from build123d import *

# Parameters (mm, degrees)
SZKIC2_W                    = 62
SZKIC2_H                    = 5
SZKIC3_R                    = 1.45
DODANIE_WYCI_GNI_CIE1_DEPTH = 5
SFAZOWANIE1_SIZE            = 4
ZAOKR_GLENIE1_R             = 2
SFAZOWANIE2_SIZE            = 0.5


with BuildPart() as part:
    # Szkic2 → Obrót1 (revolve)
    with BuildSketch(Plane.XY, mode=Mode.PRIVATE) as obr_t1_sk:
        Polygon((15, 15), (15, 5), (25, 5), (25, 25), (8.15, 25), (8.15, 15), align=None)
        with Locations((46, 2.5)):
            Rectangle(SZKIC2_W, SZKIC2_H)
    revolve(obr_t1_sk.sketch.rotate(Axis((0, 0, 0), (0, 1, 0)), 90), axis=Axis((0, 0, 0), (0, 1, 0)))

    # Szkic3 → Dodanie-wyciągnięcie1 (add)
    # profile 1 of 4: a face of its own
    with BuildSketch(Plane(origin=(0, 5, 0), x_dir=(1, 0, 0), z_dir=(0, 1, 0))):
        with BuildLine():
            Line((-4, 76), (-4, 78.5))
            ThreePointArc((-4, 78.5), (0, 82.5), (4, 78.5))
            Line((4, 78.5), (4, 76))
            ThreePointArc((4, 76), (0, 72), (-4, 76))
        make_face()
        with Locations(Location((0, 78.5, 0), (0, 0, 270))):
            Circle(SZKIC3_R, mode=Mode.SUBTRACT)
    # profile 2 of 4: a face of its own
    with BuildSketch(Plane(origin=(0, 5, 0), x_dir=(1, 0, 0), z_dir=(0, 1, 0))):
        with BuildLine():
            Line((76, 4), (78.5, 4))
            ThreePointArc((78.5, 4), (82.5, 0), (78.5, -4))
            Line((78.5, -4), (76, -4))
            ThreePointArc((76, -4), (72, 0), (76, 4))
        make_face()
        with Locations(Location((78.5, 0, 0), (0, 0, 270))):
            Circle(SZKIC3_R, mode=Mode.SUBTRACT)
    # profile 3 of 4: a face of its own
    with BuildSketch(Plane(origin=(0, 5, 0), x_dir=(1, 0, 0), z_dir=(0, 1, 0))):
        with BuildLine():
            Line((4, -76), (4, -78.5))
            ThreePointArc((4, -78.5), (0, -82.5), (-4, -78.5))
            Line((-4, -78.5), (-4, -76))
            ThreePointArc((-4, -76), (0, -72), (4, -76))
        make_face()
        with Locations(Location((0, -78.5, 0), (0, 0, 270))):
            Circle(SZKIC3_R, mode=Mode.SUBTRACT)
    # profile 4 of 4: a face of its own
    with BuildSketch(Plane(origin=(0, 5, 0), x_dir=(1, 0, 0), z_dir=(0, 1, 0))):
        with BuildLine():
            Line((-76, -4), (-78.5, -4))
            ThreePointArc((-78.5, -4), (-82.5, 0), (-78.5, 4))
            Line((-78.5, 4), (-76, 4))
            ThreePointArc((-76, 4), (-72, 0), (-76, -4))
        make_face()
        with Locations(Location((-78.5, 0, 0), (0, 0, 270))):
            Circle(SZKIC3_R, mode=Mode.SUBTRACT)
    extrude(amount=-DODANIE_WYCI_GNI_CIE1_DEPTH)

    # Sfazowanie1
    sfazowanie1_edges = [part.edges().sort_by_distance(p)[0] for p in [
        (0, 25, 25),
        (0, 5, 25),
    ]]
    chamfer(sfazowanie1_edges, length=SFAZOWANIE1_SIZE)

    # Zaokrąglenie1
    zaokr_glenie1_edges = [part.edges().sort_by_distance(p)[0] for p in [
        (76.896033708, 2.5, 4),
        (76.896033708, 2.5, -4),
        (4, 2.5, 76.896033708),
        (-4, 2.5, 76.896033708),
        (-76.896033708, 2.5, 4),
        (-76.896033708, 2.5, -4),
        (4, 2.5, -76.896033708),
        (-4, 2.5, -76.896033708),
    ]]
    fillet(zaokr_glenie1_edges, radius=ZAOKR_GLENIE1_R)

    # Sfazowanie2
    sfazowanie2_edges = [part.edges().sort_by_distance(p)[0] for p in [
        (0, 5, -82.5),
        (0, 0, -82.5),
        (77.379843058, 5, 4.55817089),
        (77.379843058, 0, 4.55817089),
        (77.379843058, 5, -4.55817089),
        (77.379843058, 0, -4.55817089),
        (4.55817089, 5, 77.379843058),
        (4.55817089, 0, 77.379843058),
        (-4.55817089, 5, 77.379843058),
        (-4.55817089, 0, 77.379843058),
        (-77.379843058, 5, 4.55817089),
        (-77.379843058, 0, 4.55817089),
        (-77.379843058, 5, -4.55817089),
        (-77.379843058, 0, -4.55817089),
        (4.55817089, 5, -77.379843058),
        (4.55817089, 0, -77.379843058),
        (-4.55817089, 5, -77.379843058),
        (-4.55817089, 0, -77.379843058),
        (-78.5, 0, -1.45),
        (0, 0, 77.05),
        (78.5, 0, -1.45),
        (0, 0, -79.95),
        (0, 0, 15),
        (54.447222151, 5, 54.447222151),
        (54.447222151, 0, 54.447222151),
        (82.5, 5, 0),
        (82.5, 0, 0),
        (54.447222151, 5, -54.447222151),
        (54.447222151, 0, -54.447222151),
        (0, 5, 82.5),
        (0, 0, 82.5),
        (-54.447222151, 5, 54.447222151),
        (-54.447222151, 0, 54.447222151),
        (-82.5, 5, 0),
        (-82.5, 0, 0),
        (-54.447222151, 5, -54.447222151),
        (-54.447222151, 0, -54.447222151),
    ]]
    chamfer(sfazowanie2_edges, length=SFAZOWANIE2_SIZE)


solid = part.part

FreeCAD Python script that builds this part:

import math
import FreeCAD as App
import Part
import Sketcher


def edges_at(feature, points):
    """Names of the edges that pass closest to the given points."""
    edges = feature.Shape.Edges
    near = lambda p: min(range(len(edges)), key=lambda i: edges[i].distToShape(Part.Vertex(*p))[0])
    return sorted({f"Edge{near(p) + 1}" for p in points})

doc = App.newDocument("Part")
body = doc.addObject("PartDesign::Body", "Body")

sketch1 = doc.addObject("Sketcher::SketchObject", "Sketch")
body.addObject(sketch1)
sketch1.AttachmentSupport = (doc.XY_Plane, [""])
sketch1.MapMode = "FlatFace"
sketch1.addGeometry([
    Part.LineSegment(App.Vector(15, 15, 0), App.Vector(15, 0, 0)),
    Part.LineSegment(App.Vector(15, 0, 0), App.Vector(77, 0, 0)),
    Part.LineSegment(App.Vector(77, 0, 0), App.Vector(77, 5, 0)),
    Part.LineSegment(App.Vector(77, 5, 0), App.Vector(25, 5, 0)),
    Part.LineSegment(App.Vector(25, 5, 0), App.Vector(25, 25, 0)),
    Part.LineSegment(App.Vector(25, 25, 0), App.Vector(8, 25, 0)),
    Part.LineSegment(App.Vector(8, 25, 0), App.Vector(8, 15, 0)),
    Part.LineSegment(App.Vector(8, 15, 0), App.Vector(15, 15, 0)),
], False)
sketch1.addConstraint([
    Sketcher.Constraint("Coincident", 0, 2, 1, 1),
    Sketcher.Constraint("Coincident", 1, 2, 2, 1),
    Sketcher.Constraint("Coincident", 2, 2, 3, 1),
    Sketcher.Constraint("Coincident", 3, 2, 4, 1),
    Sketcher.Constraint("Coincident", 4, 2, 5, 1),
    Sketcher.Constraint("Coincident", 5, 2, 6, 1),
    Sketcher.Constraint("Coincident", 6, 2, 7, 1),
    Sketcher.Constraint("Coincident", 7, 2, 0, 1),
    Sketcher.Constraint("Vertical", 0),
    Sketcher.Constraint("Horizontal", 1),
    Sketcher.Constraint("Vertical", 2),
    Sketcher.Constraint("Horizontal", 3),
    Sketcher.Constraint("Vertical", 4),
    Sketcher.Constraint("Horizontal", 5),
    Sketcher.Constraint("Vertical", 6),
    Sketcher.Constraint("Horizontal", 7),
    Sketcher.Constraint("PointOnObject", 0, 2, -1),
    Sketcher.Constraint("DistanceX", 1, 1, 1, 2, 62.0),
    Sketcher.Constraint("DistanceX", 3, 2, 3, 1, 52.0),
    Sketcher.Constraint("DistanceY", 0, 2, 0, 1, 15.0),
    Sketcher.Constraint("DistanceY", 2, 1, 2, 2, 5.0),
    Sketcher.Constraint("DistanceY", 4, 1, 4, 2, 20.0),
    Sketcher.Constraint("DistanceX", -1, 1, 0, 2, 15.0),
    Sketcher.Constraint("DistanceX", 5, 2, 5, 1, 16.85),
])
revolution = doc.addObject("PartDesign::Revolution", "Revolution")
body.addObject(revolution)
revolution.Profile = sketch1
revolution.ReferenceAxis = (sketch1, ["V_Axis"])
revolution.Angle = 360

sketch2 = doc.addObject("Sketcher::SketchObject", "Sketch001")
body.addObject(sketch2)
sketch2.AttachmentSupport = (doc.XZ_Plane, [""])
sketch2.MapMode = "FlatFace"
sketch2.AttachmentOffset = App.Placement(App.Vector(0, 0, -5), App.Rotation())
sketch2.addGeometry([
    Part.LineSegment(App.Vector(-4, -78.5, 0), App.Vector(-4, -76, 0)),
    Part.ArcOfCircle(Part.Circle(App.Vector(0, -76, 0), App.Vector(0, 0, 1), 4), math.radians(0), math.radians(180)),
    Part.LineSegment(App.Vector(4, -76, 0), App.Vector(4, -78.5, 0)),
    Part.ArcOfCircle(Part.Circle(App.Vector(0, -78.5, 0), App.Vector(0, 0, 1), 4), math.radians(180), math.radians(360)),
    Part.Circle(App.Vector(0, -78.5, 0), App.Vector(0, 0, 1), 1.4),
    Part.LineSegment(App.Vector(78.5, -4, 0), App.Vector(76, -4, 0)),
    Part.ArcOfCircle(Part.Circle(App.Vector(76, 0, 0), App.Vector(0, 0, 1), 4), math.radians(90), math.radians(270)),
    Part.LineSegment(App.Vector(76, 4, 0), App.Vector(78.5, 4, 0)),
    Part.ArcOfCircle(Part.Circle(App.Vector(78.5, 0, 0), App.Vector(0, 0, 1), 4), math.radians(-90), math.radians(90)),
    Part.Circle(App.Vector(78.5, 0, 0), App.Vector(0, 0, 1), 1.4),
    Part.LineSegment(App.Vector(4, 78.5, 0), App.Vector(4, 76, 0)),
    Part.ArcOfCircle(Part.Circle(App.Vector(0, 76, 0), App.Vector(0, 0, 1), 4), math.radians(180), math.radians(360)),
    Part.LineSegment(App.Vector(-4, 76, 0), App.Vector(-4, 78.5, 0)),
    Part.ArcOfCircle(Part.Circle(App.Vector(0, 78.5, 0), App.Vector(0, 0, 1), 4), math.radians(0), math.radians(180)),
    Part.Circle(App.Vector(0, 78.5, 0), App.Vector(0, 0, 1), 1.4),
    Part.LineSegment(App.Vector(-78.5, 4, 0), App.Vector(-76, 4, 0)),
    Part.ArcOfCircle(Part.Circle(App.Vector(-76, 0, 0), App.Vector(0, 0, 1), 4), math.radians(-90), math.radians(90)),
    Part.LineSegment(App.Vector(-76, -4, 0), App.Vector(-78.5, -4, 0)),
    Part.ArcOfCircle(Part.Circle(App.Vector(-78.5, 0, 0), App.Vector(0, 0, 1), 4), math.radians(90), math.radians(270)),
    Part.Circle(App.Vector(-78.5, 0, 0), App.Vector(0, 0, 1), 1.4),
], False)
sketch2.addConstraint([
    Sketcher.Constraint("Tangent", 0, 2, 1, 2),
    Sketcher.Constraint("Tangent", 1, 1, 2, 1),
    Sketcher.Constraint("Tangent", 2, 2, 3, 2),
    Sketcher.Constraint("Tangent", 3, 1, 0, 1),
    Sketcher.Constraint("Tangent", 5, 2, 6, 2),
    Sketcher.Constraint("Tangent", 6, 1, 7, 1),
    Sketcher.Constraint("Tangent", 7, 2, 8, 2),
    Sketcher.Constraint("Tangent", 8, 1, 5, 1),
    Sketcher.Constraint("Tangent", 10, 2, 11, 2),
    Sketcher.Constraint("Tangent", 11, 1, 12, 1),
    Sketcher.Constraint("Tangent", 12, 2, 13, 2),
    Sketcher.Constraint("Tangent", 13, 1, 10, 1),
    Sketcher.Constraint("Tangent", 15, 2, 16, 2),
    Sketcher.Constraint("Tangent", 16, 1, 17, 1),
    Sketcher.Constraint("Tangent", 17, 2, 18, 2),
    Sketcher.Constraint("Tangent", 18, 1, 15, 1),
    Sketcher.Constraint("Vertical", 0),
    Sketcher.Constraint("Vertical", 2),
    Sketcher.Constraint("Horizontal", 5),
    Sketcher.Constraint("Horizontal", 7),
    Sketcher.Constraint("Vertical", 10),
    Sketcher.Constraint("Vertical", 12),
    Sketcher.Constraint("Horizontal", 15),
    Sketcher.Constraint("Horizontal", 17),
    Sketcher.Constraint("Coincident", 4, 3, 3, 3),
    Sketcher.Constraint("Coincident", 9, 3, 8, 3),
    Sketcher.Constraint("Coincident", 14, 3, 13, 3),
    Sketcher.Constraint("Coincident", 19, 3, 18, 3),
    Sketcher.Constraint("Equal", 3, 6),
    Sketcher.Constraint("Equal", 4, 9),
    Sketcher.Constraint("Equal", 8, 11),
    Sketcher.Constraint("Equal", 9, 14),
    Sketcher.Constraint("Equal", 13, 16),
    Sketcher.Constraint("Equal", 14, 19),
    Sketcher.Constraint("Symmetric", 1, 3, 11, 3, -1, 1),
    Sketcher.Constraint("Symmetric", 6, 3, 16, 3, -1, 1),
    Sketcher.Constraint("Symmetric", 8, 3, 18, 3, -2),
    Sketcher.Constraint("Symmetric", 3, 3, 13, 3, -1),
    Sketcher.Constraint("Equal", 17, 0),
    Sketcher.Constraint("Radius", 1, 4.0),
    Sketcher.Constraint("Diameter", 4, 2.9),
    Sketcher.Constraint("DistanceX", 5, 2, 5, 1, 2.5),
    Sketcher.Constraint("DistanceY", 1, 3, -1, 1, 76.0),
    Sketcher.Constraint("DistanceX", -1, 1, 6, 3, 76.0),
])
pad1 = doc.addObject("PartDesign::Pad", "Pad")
body.addObject(pad1)
pad1.Profile = sketch2
pad1.Length = 5
doc.recompute()

chamfer = doc.addObject("PartDesign::Chamfer", "Chamfer")
body.addObject(chamfer)
chamfer.Base = (pad1, edges_at(pad1, [(0, 25, 25), (0, 5, 25)]))
chamfer.Size = 4
doc.recompute()

fillet = doc.addObject("PartDesign::Fillet", "Fillet")
body.addObject(fillet)
fillet.Base = (chamfer, edges_at(chamfer, [
    (76.896, 2.5, 4),
    (76.896, 2.5, -4),
    (4, 2.5, 76.896),
    (-4, 2.5, 76.896),
    (-76.896, 2.5, 4),
    (-76.896, 2.5, -4),
    (4, 2.5, -76.896),
    (-4, 2.5, -76.896),
]))
fillet.Radius = 2
doc.recompute()

chamfer2 = doc.addObject("PartDesign::Chamfer", "Chamfer001")
body.addObject(chamfer2)
chamfer2.Base = (fillet, edges_at(fillet, [
    (0, 5, -82.5),
    (0, 0, -82.5),
    (77.38, 5, 4.558),
    (77.38, 0, 4.558),
    (77.38, 5, -4.558),
    (77.38, 0, -4.558),
    (4.558, 5, 77.38),
    (4.558, 0, 77.38),
    (-4.558, 5, 77.38),
    (-4.558, 0, 77.38),
    (-77.38, 5, 4.558),
    (-77.38, 0, 4.558),
    (-77.38, 5, -4.558),
    (-77.38, 0, -4.558),
    (4.558, 5, -77.38),
    (4.558, 0, -77.38),
    (-4.558, 5, -77.38),
    (-4.558, 0, -77.38),
    (-78.5, 0, -1.45),
    (0, 0, 77.05),
    (78.5, 0, -1.45),
    (0, 0, -79.95),
    (0, 0, 15),
    (54.447, 5, 54.447),
    (54.447, 0, 54.447),
    (82.5, 5, 0),
    (82.5, 0, 0),
    (54.447, 5, -54.447),
    (54.447, 0, -54.447),
    (0, 5, 82.5),
    (0, 0, 82.5),
    (-54.447, 5, 54.447),
    (-54.447, 0, 54.447),
    (-82.5, 5, 0),
    (-82.5, 0, 0),
    (-54.447, 5, -54.447),
    (-54.447, 0, -54.447),
]))
chamfer2.Size = 0.5

doc.recompute()
